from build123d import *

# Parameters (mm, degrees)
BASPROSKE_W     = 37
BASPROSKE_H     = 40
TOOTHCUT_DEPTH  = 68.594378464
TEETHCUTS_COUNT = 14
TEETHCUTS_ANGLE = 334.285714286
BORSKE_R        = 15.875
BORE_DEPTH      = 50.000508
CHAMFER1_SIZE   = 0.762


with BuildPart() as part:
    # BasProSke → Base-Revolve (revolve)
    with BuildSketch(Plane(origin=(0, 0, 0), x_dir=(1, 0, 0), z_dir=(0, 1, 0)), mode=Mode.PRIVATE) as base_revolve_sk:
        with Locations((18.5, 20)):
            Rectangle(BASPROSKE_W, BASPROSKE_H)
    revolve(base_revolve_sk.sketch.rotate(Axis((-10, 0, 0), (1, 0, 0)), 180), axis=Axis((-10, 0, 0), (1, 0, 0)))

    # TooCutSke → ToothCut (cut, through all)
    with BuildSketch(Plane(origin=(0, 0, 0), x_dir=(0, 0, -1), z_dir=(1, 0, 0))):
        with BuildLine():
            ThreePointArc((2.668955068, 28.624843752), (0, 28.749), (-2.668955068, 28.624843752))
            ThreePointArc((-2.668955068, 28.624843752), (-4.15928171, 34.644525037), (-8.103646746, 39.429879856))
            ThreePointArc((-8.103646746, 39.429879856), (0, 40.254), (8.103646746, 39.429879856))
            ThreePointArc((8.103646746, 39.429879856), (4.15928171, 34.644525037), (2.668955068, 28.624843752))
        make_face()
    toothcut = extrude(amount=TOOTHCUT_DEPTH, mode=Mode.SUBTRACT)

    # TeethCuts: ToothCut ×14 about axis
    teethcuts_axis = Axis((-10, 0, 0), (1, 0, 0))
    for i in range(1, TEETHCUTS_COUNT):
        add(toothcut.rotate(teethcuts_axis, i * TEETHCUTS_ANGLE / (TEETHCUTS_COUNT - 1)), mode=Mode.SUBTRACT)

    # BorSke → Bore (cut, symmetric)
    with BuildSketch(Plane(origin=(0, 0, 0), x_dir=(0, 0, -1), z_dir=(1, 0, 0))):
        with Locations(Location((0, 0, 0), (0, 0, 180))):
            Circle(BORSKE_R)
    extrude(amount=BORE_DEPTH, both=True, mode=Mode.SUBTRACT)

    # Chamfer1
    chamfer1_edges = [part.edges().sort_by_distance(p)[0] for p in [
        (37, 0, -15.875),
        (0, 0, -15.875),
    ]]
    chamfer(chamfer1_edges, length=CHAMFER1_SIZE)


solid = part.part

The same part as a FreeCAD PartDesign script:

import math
import FreeCAD as App
import Part
import Sketcher
Q = App.Units.Quantity


def edges_at(feature, points):
    """Names of the edges that pass closest to the given points."""
    edges = feature.Shape.Edges
    near = lambda p: min(range(len(edges)), key=lambda i: edges[i].distToShape(Part.Vertex(*p))[0])
    return sorted({f"Edge{near(p) + 1}" for p in points})

doc = App.newDocument("Part")
body = doc.addObject("PartDesign::Body", "Body")

# Sketch on XZ plane
sketch1 = body.newObject("Sketcher::SketchObject", "Sketch")
sketch1.AttachmentSupport = (doc.getObject("XZ_Plane"), [""])
sketch1.MapMode = "FlatFace"
sketch1.addGeometry([
    Part.LineSegment(App.Vector(0, -40, 0), App.Vector(0, 0, 0)),
    Part.LineSegment(App.Vector(0, 0, 0), App.Vector(37, 0, 0)),
    Part.LineSegment(App.Vector(37, 0, 0), App.Vector(37, -40, 0)),
    Part.LineSegment(App.Vector(37, -40, 0), App.Vector(0, -40, 0)),
], False)
sketch1.addConstraint([
    Sketcher.Constraint("Coincident", 0, 2, 1, 1),
    Sketcher.Constraint("Coincident", 1, 2, 2, 1),
    Sketcher.Constraint("Coincident", 2, 2, 3, 1),
    Sketcher.Constraint("Coincident", 3, 2, 0, 1),
    Sketcher.Constraint("Vertical", 0),
    Sketcher.Constraint("Horizontal", 1),
    Sketcher.Constraint("Vertical", 2),
    Sketcher.Constraint("Horizontal", 3),
    Sketcher.Constraint("Coincident", 0, 2, -1, 1),
    Sketcher.Constraint("DistanceX", 1, 1, 1, 2, Q("37 mm")),
    Sketcher.Constraint("DistanceY", 0, 1, 0, 2, Q("40 mm")),
])
revolution = body.newObject("PartDesign::Revolution", "Revolution")
revolution.Profile = sketch1
revolution.ReferenceAxis = (sketch1, ["H_Axis"])
revolution.Angle = 360

# Sketch on YZ plane
sketch2 = body.newObject("Sketcher::SketchObject", "Sketch001")
sketch2.AttachmentSupport = (doc.getObject("YZ_Plane"), [""])
sketch2.MapMode = "FlatFace"
sketch2.addGeometry([
    Part.ArcOfCircle(Part.Circle(App.Vector(0, 0, 0), App.Vector(0, 0, 1), 29), math.radians(-5.33), math.radians(5.33)),
    Part.ArcOfCircle(Part.Circle(App.Vector(28, -17, 0), App.Vector(0, 0, 1), 14), math.radians(38), math.radians(89)),
    Part.ArcOfCircle(Part.Circle(App.Vector(0, 0, 0), App.Vector(0, 0, 1), 40), math.radians(-12), math.radians(12)),
    Part.ArcOfCircle(Part.Circle(App.Vector(28, 17, 0), App.Vector(0, 0, 1), 14), math.radians(-89), math.radians(-38)),
], False)
sketch2.addConstraint([
    Sketcher.Constraint("Coincident", 0, 1, 1, 2),
    Sketcher.Constraint("Coincident", 1, 1, 2, 1),
    Sketcher.Constraint("Coincident", 2, 2, 3, 2),
    Sketcher.Constraint("Coincident", 3, 1, 0, 2),
    Sketcher.Constraint("Coincident", 0, 3, -1, 1),
    Sketcher.Constraint("Coincident", 2, 3, -1, 1),
    Sketcher.Constraint("Equal", 1, 3),
    Sketcher.Constraint("Symmetric", 1, 3, 3, 3, -1),
    Sketcher.Constraint("Radius", 1, Q("14 mm")),
    Sketcher.Constraint("Radius", 0, Q("28.749 mm")),
    Sketcher.Constraint("Radius", 2, Q("40.254 mm")),
    Sketcher.Constraint("DistanceY", 0, 1, 2, 2, Q("10.772602 mm")),
    Sketcher.Constraint("DistanceX", -1, 1, 1, 3, Q("28.353759 mm")),
])
pocket1 = body.newObject("PartDesign::Pocket", "Pocket")
pocket1.Profile = sketch2
pocket1.Type = "ThroughAll"
pocket1.Reversed = True
doc.recompute()

polarpattern = body.newObject("PartDesign::PolarPattern", "PolarPattern")
polarpattern.Originals = [pocket1]
polarpattern.Axis = (doc.getObject("X_Axis"), [""])
polarpattern.Angle = 360
polarpattern.Occurrences = 14
body.Tip = polarpattern

# Sketch on YZ plane
sketch3 = body.newObject("Sketcher::SketchObject", "Sketch002")
sketch3.AttachmentSupport = (doc.getObject("YZ_Plane"), [""])
sketch3.MapMode = "FlatFace"
sketch3.addGeometry(Part.Circle(App.Vector(0, 0, 0), App.Vector(0, 0, 1), 16), False)
sketch3.addConstraint([
    Sketcher.Constraint("Coincident", 0, 3, -1, 1),
    Sketcher.Constraint("Diameter", 0, Q("31.75 mm")),
])
pocket2 = body.newObject("PartDesign::Pocket", "Pocket001")
pocket2.Profile = sketch3
pocket2.Length = 100.001016
pocket2.Midplane = True
doc.recompute()

chamfer = body.newObject("PartDesign::Chamfer", "Chamfer")
chamfer.Base = (pocket2, edges_at(pocket2, [(37, 0, -15.875), (0, 0, -15.875)]))
chamfer.Size = 0.762

doc.recompute()
